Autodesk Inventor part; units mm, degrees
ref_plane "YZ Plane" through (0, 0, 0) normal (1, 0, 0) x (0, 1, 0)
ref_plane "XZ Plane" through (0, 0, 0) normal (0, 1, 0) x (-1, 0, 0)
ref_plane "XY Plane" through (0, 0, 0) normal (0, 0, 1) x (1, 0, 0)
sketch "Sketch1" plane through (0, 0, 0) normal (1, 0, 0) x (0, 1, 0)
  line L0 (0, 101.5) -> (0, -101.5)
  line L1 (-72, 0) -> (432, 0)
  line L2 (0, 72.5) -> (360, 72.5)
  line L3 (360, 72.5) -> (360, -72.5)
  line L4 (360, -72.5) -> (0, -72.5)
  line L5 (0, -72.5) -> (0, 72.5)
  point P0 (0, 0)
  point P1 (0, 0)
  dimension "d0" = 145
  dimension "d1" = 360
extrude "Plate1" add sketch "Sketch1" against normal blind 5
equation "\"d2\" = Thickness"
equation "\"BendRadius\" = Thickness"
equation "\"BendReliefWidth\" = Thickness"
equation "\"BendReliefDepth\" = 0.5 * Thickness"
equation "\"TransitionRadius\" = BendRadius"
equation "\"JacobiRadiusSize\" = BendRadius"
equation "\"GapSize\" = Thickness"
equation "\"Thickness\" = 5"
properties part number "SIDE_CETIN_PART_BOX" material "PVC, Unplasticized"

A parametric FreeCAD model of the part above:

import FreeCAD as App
import Part
import Sketcher

V = App.Vector
Q = App.Units.Quantity


def add_polygon(sketch, points):
    """Adds a closed chain of lines whose ends are joined by coincident constraints."""
    first, n = sketch.GeometryCount, len(points)
    for a, b in zip(points, points[1:] + points[:1]):
        sketch.addGeometry(Part.LineSegment(App.Vector(*a, 0), App.Vector(*b, 0)), False)
    for i in range(n):
        sketch.addConstraint(Sketcher.Constraint("Coincident", first + i, 2, first + (i + 1) % n, 1))

doc = App.newDocument("Part")
body = doc.addObject("PartDesign::Body", "Body")

sketch1 = doc.addObject("Sketcher::SketchObject", "Sketch")
body.addObject(sketch1)
sketch1.AttachmentSupport = (doc.YZ_Plane, [""])
sketch1.MapMode = "FlatFace"
add_polygon(sketch1, [(360, 72), (0, 72), (0, -72), (360, -72)])
sketch1.addConstraint([
    Sketcher.Constraint("Horizontal", 0),
    Sketcher.Constraint("Vertical", 1),
    Sketcher.Constraint("Horizontal", 2),
    Sketcher.Constraint("Vertical", 3),
    Sketcher.Constraint("Symmetric", 0, 2, 1, 2, -1, 1),
    Sketcher.Constraint("DistanceX", 0, 2, 0, 1, Q("360 mm")),
    Sketcher.Constraint("DistanceY", 1, 2, 1, 1, Q("145 mm")),
])
pad1 = doc.addObject("PartDesign::Pad", "Pad")
body.addObject(pad1)
pad1.Profile = sketch1
pad1.Length = 5
pad1.Reversed = True

doc.recompute()
